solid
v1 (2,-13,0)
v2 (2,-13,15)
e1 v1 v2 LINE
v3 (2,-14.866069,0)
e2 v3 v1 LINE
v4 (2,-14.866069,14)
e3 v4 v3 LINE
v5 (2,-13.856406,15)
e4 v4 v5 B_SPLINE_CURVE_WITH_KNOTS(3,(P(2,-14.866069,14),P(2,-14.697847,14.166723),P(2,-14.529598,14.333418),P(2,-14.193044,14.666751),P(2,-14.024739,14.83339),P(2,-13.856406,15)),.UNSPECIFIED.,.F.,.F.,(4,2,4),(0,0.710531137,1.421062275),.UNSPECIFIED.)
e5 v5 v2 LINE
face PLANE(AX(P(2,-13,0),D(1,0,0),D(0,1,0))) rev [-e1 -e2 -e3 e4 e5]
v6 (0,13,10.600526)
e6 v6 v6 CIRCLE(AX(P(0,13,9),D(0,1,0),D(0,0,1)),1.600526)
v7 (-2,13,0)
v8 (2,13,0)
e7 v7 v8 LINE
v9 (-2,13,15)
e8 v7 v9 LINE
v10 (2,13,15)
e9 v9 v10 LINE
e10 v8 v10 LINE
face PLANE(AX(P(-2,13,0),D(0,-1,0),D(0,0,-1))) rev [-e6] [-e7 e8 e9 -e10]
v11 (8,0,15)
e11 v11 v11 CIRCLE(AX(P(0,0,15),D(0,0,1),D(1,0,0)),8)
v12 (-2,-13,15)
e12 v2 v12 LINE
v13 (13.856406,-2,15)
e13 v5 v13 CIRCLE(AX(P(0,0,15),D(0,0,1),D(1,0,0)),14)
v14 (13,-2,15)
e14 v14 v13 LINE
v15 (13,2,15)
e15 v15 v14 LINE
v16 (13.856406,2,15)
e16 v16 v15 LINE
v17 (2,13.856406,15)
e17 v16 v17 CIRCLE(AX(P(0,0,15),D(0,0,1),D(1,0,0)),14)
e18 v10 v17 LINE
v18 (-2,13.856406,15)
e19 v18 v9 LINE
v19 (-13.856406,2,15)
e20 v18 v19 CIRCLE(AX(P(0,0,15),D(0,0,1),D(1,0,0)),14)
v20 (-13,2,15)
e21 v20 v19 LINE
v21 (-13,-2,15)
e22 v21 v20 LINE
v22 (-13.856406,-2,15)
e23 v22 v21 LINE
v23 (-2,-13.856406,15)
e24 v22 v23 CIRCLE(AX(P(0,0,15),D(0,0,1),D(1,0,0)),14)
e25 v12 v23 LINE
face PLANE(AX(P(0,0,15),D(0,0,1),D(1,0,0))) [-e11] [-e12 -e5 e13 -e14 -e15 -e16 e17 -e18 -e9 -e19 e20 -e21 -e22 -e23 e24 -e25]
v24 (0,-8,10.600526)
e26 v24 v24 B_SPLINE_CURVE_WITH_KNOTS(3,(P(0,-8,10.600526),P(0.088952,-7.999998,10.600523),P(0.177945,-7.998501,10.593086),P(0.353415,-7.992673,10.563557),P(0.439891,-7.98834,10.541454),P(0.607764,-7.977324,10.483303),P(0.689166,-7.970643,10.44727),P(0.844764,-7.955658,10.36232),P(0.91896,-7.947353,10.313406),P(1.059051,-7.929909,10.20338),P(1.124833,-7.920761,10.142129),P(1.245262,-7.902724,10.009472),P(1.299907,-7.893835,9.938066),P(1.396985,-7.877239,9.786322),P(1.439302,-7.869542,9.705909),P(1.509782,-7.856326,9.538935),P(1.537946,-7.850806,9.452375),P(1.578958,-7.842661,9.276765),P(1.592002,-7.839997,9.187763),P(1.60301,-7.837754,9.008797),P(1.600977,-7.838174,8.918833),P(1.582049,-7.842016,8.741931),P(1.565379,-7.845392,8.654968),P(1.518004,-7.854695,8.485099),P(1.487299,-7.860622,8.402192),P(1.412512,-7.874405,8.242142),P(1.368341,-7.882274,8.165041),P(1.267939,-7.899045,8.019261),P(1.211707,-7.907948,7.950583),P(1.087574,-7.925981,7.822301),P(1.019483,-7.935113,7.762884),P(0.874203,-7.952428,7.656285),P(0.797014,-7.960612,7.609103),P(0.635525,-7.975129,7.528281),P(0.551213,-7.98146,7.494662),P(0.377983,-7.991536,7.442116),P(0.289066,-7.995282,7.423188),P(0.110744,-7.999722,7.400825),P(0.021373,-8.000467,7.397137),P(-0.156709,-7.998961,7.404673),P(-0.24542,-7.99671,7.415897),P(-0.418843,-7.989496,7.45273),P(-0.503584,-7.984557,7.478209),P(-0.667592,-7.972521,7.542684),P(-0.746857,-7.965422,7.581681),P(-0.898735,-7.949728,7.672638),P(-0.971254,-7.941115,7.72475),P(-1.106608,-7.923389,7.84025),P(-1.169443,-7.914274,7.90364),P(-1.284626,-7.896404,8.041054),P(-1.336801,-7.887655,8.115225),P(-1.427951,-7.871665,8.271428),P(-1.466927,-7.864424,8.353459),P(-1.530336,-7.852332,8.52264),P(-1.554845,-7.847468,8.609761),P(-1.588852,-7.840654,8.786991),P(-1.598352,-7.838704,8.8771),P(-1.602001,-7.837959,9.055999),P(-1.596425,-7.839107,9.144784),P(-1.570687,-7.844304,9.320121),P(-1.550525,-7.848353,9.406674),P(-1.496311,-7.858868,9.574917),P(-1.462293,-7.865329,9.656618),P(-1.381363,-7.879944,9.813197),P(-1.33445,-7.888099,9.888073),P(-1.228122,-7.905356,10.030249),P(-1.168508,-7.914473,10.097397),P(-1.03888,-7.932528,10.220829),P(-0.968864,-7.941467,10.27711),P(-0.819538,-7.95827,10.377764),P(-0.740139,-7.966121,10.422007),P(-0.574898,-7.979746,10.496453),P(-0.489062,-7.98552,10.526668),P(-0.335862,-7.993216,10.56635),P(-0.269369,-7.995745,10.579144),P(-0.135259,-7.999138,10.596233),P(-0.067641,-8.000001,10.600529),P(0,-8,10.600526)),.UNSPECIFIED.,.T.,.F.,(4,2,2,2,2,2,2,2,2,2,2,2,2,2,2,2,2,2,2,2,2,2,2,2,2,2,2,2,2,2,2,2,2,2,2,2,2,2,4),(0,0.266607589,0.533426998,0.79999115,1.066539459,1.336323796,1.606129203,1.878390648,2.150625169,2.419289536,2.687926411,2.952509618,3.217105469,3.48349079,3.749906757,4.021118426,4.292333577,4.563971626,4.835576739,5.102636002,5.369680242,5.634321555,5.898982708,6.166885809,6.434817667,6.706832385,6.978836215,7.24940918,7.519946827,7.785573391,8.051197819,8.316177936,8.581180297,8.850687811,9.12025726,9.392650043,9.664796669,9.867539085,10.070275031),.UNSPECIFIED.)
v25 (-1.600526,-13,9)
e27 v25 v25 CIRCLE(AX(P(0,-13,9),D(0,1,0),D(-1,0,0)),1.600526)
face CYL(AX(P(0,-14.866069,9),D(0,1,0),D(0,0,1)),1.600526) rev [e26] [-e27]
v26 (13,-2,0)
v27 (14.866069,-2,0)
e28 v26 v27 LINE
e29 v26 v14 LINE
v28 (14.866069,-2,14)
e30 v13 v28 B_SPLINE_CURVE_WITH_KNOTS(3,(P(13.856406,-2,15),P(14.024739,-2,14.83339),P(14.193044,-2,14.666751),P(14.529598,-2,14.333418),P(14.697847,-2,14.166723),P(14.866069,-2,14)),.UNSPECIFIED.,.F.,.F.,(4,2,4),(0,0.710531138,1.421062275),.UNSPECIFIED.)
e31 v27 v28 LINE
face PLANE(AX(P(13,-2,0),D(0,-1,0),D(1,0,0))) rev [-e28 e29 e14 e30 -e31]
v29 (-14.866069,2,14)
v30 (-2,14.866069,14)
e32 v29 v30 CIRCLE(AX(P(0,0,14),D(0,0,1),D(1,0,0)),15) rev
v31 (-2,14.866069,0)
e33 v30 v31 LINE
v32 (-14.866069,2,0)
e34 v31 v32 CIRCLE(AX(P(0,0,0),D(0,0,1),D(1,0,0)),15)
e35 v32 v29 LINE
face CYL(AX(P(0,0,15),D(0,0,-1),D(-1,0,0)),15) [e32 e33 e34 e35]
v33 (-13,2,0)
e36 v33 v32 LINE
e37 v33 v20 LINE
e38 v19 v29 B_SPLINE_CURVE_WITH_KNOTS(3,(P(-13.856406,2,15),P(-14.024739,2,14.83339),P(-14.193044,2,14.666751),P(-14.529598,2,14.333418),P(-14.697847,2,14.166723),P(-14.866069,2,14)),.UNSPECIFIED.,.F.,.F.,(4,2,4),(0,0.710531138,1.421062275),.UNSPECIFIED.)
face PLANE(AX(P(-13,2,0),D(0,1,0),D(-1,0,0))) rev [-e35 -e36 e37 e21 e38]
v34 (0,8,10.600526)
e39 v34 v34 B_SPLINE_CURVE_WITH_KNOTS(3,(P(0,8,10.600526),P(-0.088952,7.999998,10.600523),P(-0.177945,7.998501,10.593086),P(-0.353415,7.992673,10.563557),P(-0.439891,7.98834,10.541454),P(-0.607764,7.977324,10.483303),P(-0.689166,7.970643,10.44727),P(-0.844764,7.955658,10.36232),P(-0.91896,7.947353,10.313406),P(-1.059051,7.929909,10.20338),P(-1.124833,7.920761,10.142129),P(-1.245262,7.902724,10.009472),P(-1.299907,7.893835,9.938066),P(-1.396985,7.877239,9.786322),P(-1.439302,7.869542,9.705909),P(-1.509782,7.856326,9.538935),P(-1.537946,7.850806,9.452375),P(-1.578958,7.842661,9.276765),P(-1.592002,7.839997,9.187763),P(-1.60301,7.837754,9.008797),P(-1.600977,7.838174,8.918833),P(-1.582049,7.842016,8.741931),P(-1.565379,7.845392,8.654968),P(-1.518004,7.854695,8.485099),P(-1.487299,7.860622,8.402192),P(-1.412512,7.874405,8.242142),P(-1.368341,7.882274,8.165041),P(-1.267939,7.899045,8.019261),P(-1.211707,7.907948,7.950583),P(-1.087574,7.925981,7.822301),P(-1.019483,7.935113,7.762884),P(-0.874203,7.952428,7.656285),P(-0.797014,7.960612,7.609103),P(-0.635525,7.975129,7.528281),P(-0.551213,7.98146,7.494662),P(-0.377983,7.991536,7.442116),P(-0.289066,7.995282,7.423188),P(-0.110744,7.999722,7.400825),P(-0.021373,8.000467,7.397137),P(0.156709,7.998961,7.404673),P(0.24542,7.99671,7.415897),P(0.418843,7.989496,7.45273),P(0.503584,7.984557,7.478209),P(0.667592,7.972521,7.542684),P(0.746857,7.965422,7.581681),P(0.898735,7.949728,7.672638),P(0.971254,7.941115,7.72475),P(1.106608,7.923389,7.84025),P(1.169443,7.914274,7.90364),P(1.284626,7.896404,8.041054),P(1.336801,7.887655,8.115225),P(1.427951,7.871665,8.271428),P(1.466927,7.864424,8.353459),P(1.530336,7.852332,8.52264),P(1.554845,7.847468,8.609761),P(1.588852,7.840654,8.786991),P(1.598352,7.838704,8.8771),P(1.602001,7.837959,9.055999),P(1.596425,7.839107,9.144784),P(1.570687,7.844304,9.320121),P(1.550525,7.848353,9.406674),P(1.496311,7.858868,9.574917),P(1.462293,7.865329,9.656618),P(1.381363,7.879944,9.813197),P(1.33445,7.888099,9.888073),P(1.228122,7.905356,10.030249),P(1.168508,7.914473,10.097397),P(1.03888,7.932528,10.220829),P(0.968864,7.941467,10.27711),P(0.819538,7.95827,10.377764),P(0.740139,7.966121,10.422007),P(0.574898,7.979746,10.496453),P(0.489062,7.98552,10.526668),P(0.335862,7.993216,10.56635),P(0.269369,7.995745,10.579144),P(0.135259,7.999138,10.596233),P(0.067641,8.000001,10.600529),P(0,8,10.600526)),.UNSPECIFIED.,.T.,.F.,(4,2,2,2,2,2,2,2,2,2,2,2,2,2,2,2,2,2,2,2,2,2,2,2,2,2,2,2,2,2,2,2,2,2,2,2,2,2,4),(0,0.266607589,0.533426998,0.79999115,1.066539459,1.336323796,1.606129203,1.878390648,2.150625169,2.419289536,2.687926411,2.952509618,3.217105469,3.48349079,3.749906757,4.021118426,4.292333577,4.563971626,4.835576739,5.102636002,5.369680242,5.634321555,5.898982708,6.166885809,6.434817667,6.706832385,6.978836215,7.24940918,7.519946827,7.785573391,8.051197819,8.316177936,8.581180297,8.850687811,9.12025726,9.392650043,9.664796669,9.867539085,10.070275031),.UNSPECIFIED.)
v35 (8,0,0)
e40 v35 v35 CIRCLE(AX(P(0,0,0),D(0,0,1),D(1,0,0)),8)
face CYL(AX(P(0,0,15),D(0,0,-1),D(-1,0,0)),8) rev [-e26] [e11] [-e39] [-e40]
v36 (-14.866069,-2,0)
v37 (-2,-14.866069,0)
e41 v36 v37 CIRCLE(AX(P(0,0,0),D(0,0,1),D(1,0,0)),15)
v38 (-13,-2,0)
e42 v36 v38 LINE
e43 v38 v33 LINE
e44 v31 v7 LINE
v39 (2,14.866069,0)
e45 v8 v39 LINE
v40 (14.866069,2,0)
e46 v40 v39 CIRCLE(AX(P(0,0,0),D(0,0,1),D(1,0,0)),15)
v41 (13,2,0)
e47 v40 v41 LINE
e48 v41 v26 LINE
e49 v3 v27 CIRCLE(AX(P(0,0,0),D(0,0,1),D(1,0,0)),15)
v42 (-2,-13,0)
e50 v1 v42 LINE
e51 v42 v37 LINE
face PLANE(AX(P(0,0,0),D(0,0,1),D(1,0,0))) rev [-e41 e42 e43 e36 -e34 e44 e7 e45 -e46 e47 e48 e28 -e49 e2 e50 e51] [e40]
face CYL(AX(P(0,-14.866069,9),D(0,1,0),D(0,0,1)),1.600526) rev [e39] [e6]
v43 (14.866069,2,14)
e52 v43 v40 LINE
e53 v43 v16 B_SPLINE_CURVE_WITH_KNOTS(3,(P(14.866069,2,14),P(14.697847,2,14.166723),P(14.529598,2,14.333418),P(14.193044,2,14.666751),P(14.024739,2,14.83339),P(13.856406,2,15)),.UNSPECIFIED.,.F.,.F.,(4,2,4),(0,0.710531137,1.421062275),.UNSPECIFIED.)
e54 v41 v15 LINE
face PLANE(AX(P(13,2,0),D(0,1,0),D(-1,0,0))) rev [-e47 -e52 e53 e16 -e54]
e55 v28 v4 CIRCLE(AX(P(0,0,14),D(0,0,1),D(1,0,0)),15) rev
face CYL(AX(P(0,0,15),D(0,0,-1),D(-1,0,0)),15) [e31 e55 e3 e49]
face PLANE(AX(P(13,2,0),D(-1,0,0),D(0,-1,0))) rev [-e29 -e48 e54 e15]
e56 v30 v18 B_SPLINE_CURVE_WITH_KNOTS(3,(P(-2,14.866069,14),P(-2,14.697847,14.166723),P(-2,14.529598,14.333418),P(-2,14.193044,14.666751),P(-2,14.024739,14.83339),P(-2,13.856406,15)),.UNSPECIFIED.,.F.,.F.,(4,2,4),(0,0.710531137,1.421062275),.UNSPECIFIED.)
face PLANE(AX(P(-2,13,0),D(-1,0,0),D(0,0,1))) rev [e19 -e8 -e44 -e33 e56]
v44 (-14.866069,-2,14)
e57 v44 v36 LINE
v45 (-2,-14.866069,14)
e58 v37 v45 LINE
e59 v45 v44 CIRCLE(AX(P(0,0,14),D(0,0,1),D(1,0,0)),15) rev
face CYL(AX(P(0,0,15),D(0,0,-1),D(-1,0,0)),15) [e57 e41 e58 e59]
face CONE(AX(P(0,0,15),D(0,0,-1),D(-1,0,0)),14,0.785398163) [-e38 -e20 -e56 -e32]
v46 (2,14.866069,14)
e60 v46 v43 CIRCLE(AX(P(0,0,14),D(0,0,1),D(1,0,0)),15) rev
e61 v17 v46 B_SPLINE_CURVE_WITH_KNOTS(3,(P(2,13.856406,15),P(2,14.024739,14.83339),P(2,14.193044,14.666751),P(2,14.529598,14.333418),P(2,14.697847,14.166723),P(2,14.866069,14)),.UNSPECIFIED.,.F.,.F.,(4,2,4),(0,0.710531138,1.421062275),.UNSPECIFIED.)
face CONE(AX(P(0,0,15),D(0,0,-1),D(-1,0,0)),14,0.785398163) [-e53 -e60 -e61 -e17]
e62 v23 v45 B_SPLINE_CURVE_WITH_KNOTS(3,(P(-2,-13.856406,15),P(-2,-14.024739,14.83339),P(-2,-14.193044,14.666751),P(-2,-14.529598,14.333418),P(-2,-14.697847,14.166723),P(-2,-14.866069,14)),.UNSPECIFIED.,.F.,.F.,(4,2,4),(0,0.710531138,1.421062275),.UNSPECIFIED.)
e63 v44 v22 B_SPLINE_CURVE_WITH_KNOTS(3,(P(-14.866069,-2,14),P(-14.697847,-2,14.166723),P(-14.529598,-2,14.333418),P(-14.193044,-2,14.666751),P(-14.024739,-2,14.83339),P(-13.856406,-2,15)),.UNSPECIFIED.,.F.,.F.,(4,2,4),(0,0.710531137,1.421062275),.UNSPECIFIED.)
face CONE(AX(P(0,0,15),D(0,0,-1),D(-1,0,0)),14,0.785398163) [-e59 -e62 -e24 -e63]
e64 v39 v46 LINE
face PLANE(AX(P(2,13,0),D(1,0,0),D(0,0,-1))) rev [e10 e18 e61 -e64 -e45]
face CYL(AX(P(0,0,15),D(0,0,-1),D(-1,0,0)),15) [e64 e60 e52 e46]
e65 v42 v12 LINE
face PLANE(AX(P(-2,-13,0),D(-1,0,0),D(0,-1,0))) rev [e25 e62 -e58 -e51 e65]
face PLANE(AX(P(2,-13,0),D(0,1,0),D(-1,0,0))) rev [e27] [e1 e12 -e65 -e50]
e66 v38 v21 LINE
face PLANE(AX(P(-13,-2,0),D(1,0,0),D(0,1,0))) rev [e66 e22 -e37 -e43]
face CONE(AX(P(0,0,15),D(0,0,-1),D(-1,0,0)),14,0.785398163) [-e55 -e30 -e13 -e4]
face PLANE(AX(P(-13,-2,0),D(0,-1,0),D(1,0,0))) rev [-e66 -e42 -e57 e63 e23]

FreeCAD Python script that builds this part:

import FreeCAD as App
import Part
import Sketcher

V = App.Vector


def edges_at(feature, points):
    """Names of the edges that pass closest to the given points."""
    edges = feature.Shape.Edges
    near = lambda p: min(range(len(edges)), key=lambda i: edges[i].distToShape(Part.Vertex(*p))[0])
    return sorted({f"Edge{near(p) + 1}" for p in points})


def add_polygon(sketch, points):
    """Adds a closed chain of lines whose ends are joined by coincident constraints."""
    first, n = sketch.GeometryCount, len(points)
    for a, b in zip(points, points[1:] + points[:1]):
        sketch.addGeometry(Part.LineSegment(App.Vector(*a, 0), App.Vector(*b, 0)), False)
    for i in range(n):
        sketch.addConstraint(Sketcher.Constraint("Coincident", first + i, 2, first + (i + 1) % n, 1))

doc = App.newDocument("Part")
params = doc.addObject("Spreadsheet::Sheet", "Params")
for row, (alias, value) in enumerate([
    ("sketch1_diameter", "30 mm"),
    ("sketch1_diameter2", "16 mm"),
    ("pad1_length", "15 mm"),
    ("sketch2_width", "4 mm"),
    ("chamfer_size", "1 mm"),
], start=1):
    params.set(f"A{row}", alias)
    params.set(f"B{row}", "=" + value)
    params.setAlias(f"B{row}", alias)

body = doc.addObject("PartDesign::Body", "Body")

# Sketch on XY plane
sketch1 = doc.addObject("Sketcher::SketchObject", "Sketch")
body.addObject(sketch1)
sketch1.AttachmentSupport = (doc.XY_Plane, [""])
sketch1.MapMode = "FlatFace"
sketch1.addGeometry(Part.Circle(V(0, 0, 0), V(0, 0, 1), 15), False)
sketch1.addGeometry(Part.Circle(V(0, 0, 0), V(0, 0, 1), 8), False)
sketch1.addConstraint(Sketcher.Constraint("Coincident", 0, 3, -1, 1))
sketch1.addConstraint(Sketcher.Constraint("Coincident", 1, 3, -1, 1))
sketch1.addConstraint(Sketcher.Constraint("Diameter", 0, 30.0))
sketch1.addConstraint(Sketcher.Constraint("Diameter", 1, 16.0))
sketch1.setExpression("Constraints[2]", "Params.sketch1_diameter")
sketch1.setExpression("Constraints[3]", "Params.sketch1_diameter2")
pad1 = doc.addObject("PartDesign::Pad", "Pad")
body.addObject(pad1)
pad1.Profile = sketch1
pad1.setExpression("Length", "Params.pad1_length")

# Sketch on XY plane
sketch2 = doc.addObject("Sketcher::SketchObject", "Sketch001")
body.addObject(sketch2)
sketch2.AttachmentSupport = (doc.XY_Plane, [""])
sketch2.MapMode = "FlatFace"
sketch2.AttachmentOffset = App.Placement(V(0, 0, 15), App.Rotation())
add_polygon(sketch2, [(13, 2), (13, -2), (17, -2), (17, 2)])  # lines 0-3
add_polygon(sketch2, [(-2, 17), (-2, 13), (2, 13), (2, 17)])  # lines 4-7
add_polygon(sketch2, [(-2, -13), (-2, -17), (2, -17), (2, -13)])  # lines 8-11
add_polygon(sketch2, [(-17, 2), (-17, -2), (-13, -2), (-13, 2)])  # lines 12-15
sketch2.addConstraint(Sketcher.Constraint("Vertical", 0))
sketch2.addConstraint(Sketcher.Constraint("Horizontal", 1))
sketch2.addConstraint(Sketcher.Constraint("Vertical", 2))
sketch2.addConstraint(Sketcher.Constraint("Horizontal", 3))
sketch2.addConstraint(Sketcher.Constraint("Vertical", 4))
sketch2.addConstraint(Sketcher.Constraint("Horizontal", 5))
sketch2.addConstraint(Sketcher.Constraint("Vertical", 6))
sketch2.addConstraint(Sketcher.Constraint("Horizontal", 7))
sketch2.addConstraint(Sketcher.Constraint("Vertical", 8))
sketch2.addConstraint(Sketcher.Constraint("Horizontal", 9))
sketch2.addConstraint(Sketcher.Constraint("Vertical", 10))
sketch2.addConstraint(Sketcher.Constraint("Horizontal", 11))
sketch2.addConstraint(Sketcher.Constraint("Vertical", 12))
sketch2.addConstraint(Sketcher.Constraint("Horizontal", 13))
sketch2.addConstraint(Sketcher.Constraint("Vertical", 14))
sketch2.addConstraint(Sketcher.Constraint("Horizontal", 15))
sketch2.addConstraint(Sketcher.Constraint("Symmetric", 6, 2, 8, 2, -1, 1))
sketch2.addConstraint(Sketcher.Constraint("Symmetric", 4, 2, 10, 2, -1, 1))
sketch2.addConstraint(Sketcher.Constraint("Symmetric", 2, 2, 12, 2, -1, 1))
sketch2.addConstraint(Sketcher.Constraint("Symmetric", 0, 2, 14, 2, -1, 1))
sketch2.addConstraint(Sketcher.Constraint("Horizontal", 1, 2, 12, 2))
sketch2.addConstraint(Sketcher.Constraint("Vertical", 7, 2, 8, 2))
sketch2.addConstraint(Sketcher.Constraint("Equal", 3, 5))
sketch2.addConstraint(Sketcher.Constraint("Equal", 15, 0))
sketch2.addConstraint(Sketcher.Constraint("Equal", 2, 4))
sketch2.addConstraint(Sketcher.Constraint("DistanceX", 1, 1, 1, 2, 4.0))
sketch2.addConstraint(Sketcher.Constraint("DistanceX", -1, 1, 0, 2, 13.0))
sketch2.addConstraint(Sketcher.Constraint("DistanceY", -1, 1, 4, 2, 13.0))
sketch2.setExpression("Constraints[41]", "Params.sketch2_width")
pocket1 = doc.addObject("PartDesign::Pocket", "Pocket")
body.addObject(pocket1)
pocket1.Profile = sketch2
pocket1.Type = "ThroughAll"
doc.recompute()

chamfer = doc.addObject("PartDesign::Chamfer", "Chamfer")
body.addObject(chamfer)
chamfer.Base = (pocket1, edges_at(pocket1, [
    (-10.607, 10.607, 15),
    (-10.607, -10.607, 15),
    (10.607, -10.607, 15),
    (10.607, 10.607, 15),
]))
chamfer.setExpression("Size", "Params.chamfer_size")

# Sketch on XZ plane
sketch3 = doc.addObject("Sketcher::SketchObject", "Sketch002")
body.addObject(sketch3)
sketch3.AttachmentSupport = (doc.XZ_Plane, [""])
sketch3.MapMode = "FlatFace"
sketch3.AttachmentOffset = App.Placement(V(0, 0, -13), App.Rotation())
sketch3.addGeometry(Part.Circle(V(0, 9, 0), V(0, 0, 1), 1.6), False)
sketch3.addConstraint(Sketcher.Constraint("PointOnObject", 0, 3, -2))
sketch3.addConstraint(Sketcher.Constraint("DistanceY", -1, 1, 0, 3, 9.0))
sketch3.addConstraint(Sketcher.Constraint("Diameter", 0, 3.201052))
pocket2 = doc.addObject("PartDesign::Pocket", "Pocket001")
body.addObject(pocket2)
pocket2.Profile = sketch3
pocket2.Type = "ThroughAll"
pocket2.Reversed = True

doc.recompute()
